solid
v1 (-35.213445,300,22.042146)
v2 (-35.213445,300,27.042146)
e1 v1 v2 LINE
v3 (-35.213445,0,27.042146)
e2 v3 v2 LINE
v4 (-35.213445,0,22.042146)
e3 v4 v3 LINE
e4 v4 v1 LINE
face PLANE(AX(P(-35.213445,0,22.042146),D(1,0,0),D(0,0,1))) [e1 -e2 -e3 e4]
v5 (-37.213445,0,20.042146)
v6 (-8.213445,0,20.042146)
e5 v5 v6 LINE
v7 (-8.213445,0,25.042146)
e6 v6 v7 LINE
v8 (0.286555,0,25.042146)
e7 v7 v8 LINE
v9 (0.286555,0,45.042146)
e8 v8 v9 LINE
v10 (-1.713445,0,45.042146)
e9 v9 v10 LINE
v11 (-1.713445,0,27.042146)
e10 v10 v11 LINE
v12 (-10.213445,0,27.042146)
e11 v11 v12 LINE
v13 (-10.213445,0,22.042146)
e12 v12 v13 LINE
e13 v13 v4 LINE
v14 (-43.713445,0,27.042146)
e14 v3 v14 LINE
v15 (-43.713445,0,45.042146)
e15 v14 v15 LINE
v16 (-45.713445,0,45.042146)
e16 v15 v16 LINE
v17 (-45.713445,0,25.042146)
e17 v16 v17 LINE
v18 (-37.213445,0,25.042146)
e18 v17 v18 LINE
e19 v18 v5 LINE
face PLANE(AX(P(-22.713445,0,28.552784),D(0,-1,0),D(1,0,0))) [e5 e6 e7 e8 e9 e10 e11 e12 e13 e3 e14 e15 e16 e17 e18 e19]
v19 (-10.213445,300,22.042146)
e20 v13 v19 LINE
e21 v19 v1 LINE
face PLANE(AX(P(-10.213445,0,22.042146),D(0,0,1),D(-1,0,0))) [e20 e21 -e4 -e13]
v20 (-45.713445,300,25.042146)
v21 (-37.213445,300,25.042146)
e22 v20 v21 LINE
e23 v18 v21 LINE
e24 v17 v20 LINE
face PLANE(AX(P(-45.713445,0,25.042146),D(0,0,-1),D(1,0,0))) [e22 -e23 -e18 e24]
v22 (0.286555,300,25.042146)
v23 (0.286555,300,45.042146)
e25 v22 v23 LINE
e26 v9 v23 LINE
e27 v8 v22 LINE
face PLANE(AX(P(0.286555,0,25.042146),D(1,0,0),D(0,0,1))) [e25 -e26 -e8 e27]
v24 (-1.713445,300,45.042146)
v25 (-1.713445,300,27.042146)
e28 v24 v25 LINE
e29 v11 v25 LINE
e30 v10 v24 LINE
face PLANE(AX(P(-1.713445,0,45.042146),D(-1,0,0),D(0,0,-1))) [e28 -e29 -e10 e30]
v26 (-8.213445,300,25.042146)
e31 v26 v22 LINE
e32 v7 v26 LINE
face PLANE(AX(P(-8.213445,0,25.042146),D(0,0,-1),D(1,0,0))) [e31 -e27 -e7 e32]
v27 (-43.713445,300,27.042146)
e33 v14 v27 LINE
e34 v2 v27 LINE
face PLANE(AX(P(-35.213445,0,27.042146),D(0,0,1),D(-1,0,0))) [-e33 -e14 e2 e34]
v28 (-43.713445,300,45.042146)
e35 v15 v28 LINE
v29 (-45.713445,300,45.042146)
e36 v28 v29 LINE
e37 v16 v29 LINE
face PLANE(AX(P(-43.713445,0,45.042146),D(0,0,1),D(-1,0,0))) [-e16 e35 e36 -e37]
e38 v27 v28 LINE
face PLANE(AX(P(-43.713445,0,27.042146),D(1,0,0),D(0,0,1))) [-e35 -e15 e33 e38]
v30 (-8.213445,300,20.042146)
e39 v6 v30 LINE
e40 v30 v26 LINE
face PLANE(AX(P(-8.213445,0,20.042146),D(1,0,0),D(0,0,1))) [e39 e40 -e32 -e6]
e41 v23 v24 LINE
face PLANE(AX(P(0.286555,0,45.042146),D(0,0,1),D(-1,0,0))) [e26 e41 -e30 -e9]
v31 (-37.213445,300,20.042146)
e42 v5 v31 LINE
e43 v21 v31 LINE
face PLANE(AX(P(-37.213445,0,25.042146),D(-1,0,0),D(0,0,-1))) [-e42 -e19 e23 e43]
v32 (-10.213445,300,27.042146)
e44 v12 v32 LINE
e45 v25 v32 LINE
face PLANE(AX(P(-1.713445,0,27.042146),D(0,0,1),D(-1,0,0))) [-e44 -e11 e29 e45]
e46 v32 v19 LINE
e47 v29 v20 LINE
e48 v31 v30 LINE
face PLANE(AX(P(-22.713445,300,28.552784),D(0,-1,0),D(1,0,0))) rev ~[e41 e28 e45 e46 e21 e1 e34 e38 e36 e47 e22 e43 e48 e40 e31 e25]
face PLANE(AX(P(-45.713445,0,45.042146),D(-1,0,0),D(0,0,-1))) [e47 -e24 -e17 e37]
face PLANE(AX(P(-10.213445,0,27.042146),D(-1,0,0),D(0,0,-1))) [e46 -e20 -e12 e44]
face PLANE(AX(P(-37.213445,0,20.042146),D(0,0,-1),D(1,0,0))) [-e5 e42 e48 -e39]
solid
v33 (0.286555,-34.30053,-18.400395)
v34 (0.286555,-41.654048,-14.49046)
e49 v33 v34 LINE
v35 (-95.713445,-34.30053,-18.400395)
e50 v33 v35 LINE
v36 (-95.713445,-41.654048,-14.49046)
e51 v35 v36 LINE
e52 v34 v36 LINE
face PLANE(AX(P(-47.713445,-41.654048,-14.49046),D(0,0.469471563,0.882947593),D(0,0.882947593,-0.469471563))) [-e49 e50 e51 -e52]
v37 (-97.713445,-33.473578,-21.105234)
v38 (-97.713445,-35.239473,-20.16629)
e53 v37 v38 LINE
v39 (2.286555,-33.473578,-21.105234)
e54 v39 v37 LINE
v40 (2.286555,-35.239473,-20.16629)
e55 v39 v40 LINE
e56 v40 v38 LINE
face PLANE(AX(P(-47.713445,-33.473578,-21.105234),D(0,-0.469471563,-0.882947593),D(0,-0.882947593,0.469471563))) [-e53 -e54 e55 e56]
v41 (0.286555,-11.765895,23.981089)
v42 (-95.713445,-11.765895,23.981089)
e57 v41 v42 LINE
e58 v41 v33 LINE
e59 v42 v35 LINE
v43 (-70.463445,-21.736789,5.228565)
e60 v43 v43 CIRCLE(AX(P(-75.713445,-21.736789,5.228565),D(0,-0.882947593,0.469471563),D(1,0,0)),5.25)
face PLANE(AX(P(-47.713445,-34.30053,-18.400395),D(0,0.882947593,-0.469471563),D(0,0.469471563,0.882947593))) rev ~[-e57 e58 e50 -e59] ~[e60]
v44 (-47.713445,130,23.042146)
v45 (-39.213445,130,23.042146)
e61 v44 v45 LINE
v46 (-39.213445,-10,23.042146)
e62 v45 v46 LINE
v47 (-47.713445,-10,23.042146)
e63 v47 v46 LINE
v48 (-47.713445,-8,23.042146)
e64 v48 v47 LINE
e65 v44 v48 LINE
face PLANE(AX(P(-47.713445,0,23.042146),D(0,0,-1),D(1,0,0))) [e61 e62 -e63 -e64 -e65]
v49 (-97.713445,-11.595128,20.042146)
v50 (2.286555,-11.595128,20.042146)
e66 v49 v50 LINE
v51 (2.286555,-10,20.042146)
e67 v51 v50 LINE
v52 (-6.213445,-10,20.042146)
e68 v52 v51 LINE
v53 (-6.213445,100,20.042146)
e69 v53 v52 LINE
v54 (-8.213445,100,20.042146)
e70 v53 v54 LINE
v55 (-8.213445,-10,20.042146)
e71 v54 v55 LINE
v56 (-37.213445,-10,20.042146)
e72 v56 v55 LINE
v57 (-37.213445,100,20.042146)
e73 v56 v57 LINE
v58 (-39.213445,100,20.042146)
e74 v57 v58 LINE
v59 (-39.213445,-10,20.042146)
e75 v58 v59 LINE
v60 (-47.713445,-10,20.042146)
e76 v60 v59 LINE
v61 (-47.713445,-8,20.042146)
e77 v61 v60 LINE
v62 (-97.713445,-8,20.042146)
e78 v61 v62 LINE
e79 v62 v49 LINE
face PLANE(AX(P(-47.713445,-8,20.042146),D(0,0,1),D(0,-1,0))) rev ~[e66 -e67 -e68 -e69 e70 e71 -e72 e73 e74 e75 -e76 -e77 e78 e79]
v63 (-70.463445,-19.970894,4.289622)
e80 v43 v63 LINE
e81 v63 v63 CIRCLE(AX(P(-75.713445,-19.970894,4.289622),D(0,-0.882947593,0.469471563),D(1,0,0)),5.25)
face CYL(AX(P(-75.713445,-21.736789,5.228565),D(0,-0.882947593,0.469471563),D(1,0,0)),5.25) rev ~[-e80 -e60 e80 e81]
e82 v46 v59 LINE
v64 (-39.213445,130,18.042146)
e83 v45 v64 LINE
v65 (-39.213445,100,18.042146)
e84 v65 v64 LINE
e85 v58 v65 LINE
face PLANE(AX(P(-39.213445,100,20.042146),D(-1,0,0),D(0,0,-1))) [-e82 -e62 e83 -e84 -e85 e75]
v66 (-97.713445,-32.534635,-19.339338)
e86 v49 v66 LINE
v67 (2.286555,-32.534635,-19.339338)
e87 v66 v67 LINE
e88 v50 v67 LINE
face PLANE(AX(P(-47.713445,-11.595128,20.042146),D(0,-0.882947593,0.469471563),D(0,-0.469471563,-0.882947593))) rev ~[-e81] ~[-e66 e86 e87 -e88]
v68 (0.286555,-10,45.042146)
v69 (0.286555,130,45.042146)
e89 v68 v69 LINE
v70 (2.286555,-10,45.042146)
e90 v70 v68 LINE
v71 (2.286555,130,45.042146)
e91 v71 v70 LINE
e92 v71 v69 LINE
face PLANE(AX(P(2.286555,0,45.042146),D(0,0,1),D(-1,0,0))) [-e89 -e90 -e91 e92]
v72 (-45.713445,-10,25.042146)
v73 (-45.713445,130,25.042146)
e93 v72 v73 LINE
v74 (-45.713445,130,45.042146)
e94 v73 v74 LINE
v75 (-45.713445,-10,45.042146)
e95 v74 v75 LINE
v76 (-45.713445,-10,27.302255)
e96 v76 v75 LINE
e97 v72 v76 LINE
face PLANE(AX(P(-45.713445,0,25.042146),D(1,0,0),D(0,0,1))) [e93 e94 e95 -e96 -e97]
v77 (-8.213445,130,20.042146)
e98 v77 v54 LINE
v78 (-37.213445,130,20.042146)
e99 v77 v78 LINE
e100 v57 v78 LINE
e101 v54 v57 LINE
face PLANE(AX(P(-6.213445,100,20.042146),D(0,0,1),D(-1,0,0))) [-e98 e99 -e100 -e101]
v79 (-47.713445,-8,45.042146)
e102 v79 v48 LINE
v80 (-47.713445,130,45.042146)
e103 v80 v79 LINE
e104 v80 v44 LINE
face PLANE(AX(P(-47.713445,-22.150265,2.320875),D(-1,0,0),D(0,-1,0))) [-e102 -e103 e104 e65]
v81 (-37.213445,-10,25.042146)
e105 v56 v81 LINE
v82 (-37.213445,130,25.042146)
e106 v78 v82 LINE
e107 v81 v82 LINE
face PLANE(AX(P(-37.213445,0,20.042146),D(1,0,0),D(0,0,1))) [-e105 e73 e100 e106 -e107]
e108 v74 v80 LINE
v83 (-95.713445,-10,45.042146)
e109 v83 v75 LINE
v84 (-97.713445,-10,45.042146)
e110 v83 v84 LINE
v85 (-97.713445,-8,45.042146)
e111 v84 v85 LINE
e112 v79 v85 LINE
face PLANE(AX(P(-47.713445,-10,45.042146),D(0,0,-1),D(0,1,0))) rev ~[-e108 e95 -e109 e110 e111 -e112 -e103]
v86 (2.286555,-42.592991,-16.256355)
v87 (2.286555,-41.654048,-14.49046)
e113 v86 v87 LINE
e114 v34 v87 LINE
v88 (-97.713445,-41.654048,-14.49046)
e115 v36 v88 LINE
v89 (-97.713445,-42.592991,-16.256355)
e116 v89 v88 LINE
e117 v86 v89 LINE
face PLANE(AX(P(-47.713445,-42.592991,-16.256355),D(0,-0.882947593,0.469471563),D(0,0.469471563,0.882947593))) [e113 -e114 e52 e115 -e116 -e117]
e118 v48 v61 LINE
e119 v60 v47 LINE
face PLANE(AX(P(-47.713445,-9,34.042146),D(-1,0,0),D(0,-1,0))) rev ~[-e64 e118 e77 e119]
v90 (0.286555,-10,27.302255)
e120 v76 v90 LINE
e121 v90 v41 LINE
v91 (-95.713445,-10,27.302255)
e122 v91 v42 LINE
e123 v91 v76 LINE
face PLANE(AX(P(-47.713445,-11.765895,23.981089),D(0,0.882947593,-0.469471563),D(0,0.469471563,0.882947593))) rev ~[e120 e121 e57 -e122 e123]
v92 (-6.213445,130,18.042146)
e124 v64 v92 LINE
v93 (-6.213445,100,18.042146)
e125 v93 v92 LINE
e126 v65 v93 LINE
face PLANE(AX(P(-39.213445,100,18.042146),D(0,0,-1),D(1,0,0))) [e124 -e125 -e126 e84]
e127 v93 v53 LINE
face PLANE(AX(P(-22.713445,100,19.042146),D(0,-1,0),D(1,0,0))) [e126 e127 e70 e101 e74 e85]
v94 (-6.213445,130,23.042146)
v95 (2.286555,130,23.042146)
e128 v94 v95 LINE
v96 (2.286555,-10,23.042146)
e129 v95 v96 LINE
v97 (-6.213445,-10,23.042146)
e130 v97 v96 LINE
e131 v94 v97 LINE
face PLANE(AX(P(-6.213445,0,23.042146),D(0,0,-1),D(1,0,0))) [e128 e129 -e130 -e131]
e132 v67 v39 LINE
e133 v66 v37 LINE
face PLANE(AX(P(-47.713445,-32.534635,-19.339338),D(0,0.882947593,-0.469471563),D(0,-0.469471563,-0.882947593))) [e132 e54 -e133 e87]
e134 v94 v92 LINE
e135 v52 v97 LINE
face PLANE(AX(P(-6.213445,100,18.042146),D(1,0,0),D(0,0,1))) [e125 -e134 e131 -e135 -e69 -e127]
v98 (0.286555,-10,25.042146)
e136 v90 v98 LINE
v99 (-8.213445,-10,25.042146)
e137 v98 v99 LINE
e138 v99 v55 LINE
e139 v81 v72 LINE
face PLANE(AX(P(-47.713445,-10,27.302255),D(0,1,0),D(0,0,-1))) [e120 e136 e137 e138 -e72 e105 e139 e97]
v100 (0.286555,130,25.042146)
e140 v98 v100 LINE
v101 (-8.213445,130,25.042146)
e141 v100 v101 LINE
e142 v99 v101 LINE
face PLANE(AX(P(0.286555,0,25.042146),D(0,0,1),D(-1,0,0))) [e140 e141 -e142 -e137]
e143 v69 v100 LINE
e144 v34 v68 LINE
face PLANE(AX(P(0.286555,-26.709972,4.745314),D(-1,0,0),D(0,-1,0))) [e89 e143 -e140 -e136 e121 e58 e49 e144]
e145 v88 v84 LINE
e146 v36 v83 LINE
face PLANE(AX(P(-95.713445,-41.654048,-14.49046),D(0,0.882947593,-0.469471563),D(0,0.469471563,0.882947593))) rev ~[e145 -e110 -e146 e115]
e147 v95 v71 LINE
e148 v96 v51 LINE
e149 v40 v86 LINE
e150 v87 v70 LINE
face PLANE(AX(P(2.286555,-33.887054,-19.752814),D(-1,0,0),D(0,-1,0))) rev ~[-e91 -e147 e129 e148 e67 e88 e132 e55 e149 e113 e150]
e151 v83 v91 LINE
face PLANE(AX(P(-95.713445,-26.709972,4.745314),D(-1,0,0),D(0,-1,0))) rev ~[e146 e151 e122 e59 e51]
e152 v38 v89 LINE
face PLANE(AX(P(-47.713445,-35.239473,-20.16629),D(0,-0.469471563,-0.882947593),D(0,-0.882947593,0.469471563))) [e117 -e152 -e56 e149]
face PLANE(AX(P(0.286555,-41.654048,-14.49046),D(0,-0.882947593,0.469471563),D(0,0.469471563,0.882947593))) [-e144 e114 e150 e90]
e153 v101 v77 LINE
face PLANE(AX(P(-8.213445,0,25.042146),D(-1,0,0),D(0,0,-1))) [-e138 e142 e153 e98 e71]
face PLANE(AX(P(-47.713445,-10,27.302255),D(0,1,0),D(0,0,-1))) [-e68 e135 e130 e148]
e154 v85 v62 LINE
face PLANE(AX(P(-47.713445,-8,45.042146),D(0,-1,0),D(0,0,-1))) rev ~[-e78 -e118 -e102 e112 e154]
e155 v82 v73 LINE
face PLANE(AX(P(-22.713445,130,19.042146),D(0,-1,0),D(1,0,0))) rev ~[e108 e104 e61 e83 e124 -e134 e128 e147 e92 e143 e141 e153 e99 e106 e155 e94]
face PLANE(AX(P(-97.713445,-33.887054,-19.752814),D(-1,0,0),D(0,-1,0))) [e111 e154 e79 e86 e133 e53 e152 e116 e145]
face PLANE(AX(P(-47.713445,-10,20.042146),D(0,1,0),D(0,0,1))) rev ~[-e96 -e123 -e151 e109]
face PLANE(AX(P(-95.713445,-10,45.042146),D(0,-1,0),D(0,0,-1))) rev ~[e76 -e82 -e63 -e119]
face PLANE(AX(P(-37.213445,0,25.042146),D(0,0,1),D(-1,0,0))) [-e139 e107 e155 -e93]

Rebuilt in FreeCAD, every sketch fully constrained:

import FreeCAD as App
import Part
import Sketcher
from FreeCAD import Vector
Q = App.Units.Quantity


def add_polygon(sketch, points):
    """Adds a closed chain of lines whose ends are joined by coincident constraints."""
    first, n = sketch.GeometryCount, len(points)
    for a, b in zip(points, points[1:] + points[:1]):
        sketch.addGeometry(Part.LineSegment(App.Vector(*a, 0), App.Vector(*b, 0)), False)
    for i in range(n):
        sketch.addConstraint(Sketcher.Constraint("Coincident", first + i, 2, first + (i + 1) % n, 1))

doc = App.newDocument("Part")
body = doc.addObject("PartDesign::Body", "Body")

# Sketch on XZ plane
sketch1 = body.newObject("Sketcher::SketchObject", "Sketch")
sketch1.AttachmentSupport = (doc.getObject("XZ_Plane"), [""])
sketch1.MapMode = "FlatFace"
add_polygon(sketch1, [(-43.7, 45), (-45.7, 45), (-45.7, 25), (-37.2, 25), (-37.2, 20), (-8.2, 20), (-8.2, 25), (0.3, 25), (0.3, 45), (-1.7, 45), (-1.7, 27), (-10.2, 27), (-10.2, 22), (-35.2, 22), (-35.2, 27), (-43.7, 27)])  # lines 0-15
sketch1.addConstraint([
    Sketcher.Constraint("Horizontal", 0),
    Sketcher.Constraint("Vertical", 1),
    Sketcher.Constraint("Horizontal", 2),
    Sketcher.Constraint("Vertical", 3),
    Sketcher.Constraint("Horizontal", 4),
    Sketcher.Constraint("Vertical", 5),
    Sketcher.Constraint("Horizontal", 6),
    Sketcher.Constraint("Vertical", 7),
    Sketcher.Constraint("Horizontal", 8),
    Sketcher.Constraint("Vertical", 9),
    Sketcher.Constraint("Horizontal", 10),
    Sketcher.Constraint("Vertical", 11),
    Sketcher.Constraint("Horizontal", 12),
    Sketcher.Constraint("Vertical", 13),
    Sketcher.Constraint("Horizontal", 14),
    Sketcher.Constraint("Vertical", 15),
    Sketcher.Constraint("Horizontal", 2, 2, 5, 2),
    Sketcher.Constraint("Horizontal", 0, 2, 7, 2),
    Sketcher.Constraint("Horizontal", 10, 2, 13, 2),
    Sketcher.Constraint("Equal", 2, 6),
    Sketcher.Constraint("Equal", 0, 8),
    Sketcher.Constraint("Equal", 6, 10),
    Sketcher.Constraint("Equal", 10, 14),
    Sketcher.Constraint("Equal", 5, 11),
    Sketcher.Constraint("DistanceX", 0, 2, 0, 1, Q("2 mm")),
    Sketcher.Constraint("DistanceX", 4, 1, 4, 2, Q("29 mm")),
    Sketcher.Constraint("DistanceY", 1, 2, 1, 1, Q("20 mm")),
    Sketcher.Constraint("DistanceY", 3, 2, 3, 1, Q("5 mm")),
    Sketcher.Constraint("DistanceY", 9, 2, 9, 1, Q("18 mm")),
    Sketcher.Constraint("DistanceX", 2, 1, 2, 2, Q("8.5 mm")),
    Sketcher.Constraint("DistanceX", 0, 2, -1, 1, Q("45.713445 mm")),
    Sketcher.Constraint("DistanceY", -1, 1, 0, 2, Q("45.042146 mm")),
])
pad1 = body.newObject("PartDesign::Pad", "Pad")
pad1.Profile = sketch1
pad1.Length = 300
pad1.Reversed = True
body2 = doc.addObject("PartDesign::Body", "Body001")

# Sketch on XZ plane
sketch2 = body2.newObject("Sketcher::SketchObject", "Sketch001")
sketch2.AttachmentSupport = (doc.getObject("XZ_Plane001"), [""])
sketch2.MapMode = "FlatFace"
add_polygon(sketch2, [(-45.7, 25), (-45.7, 45), (-47.7, 45), (-47.7, 23), (-39.2, 23), (-39.2, 20), (-37.2, 20), (-37.2, 25)])  # lines 0-7
sketch2.addConstraint([
    Sketcher.Constraint("Vertical", 0),
    Sketcher.Constraint("Horizontal", 1),
    Sketcher.Constraint("Vertical", 2),
    Sketcher.Constraint("Horizontal", 3),
    Sketcher.Constraint("Vertical", 4),
    Sketcher.Constraint("Horizontal", 5),
    Sketcher.Constraint("Vertical", 6),
    Sketcher.Constraint("Horizontal", 7),
    Sketcher.Constraint("Equal", 1, 5),
    Sketcher.Constraint("DistanceX", 1, 2, 1, 1, Q("2 mm")),
    Sketcher.Constraint("DistanceY", 0, 1, 0, 2, Q("20 mm")),
    Sketcher.Constraint("DistanceY", 2, 2, 2, 1, Q("22 mm")),
    Sketcher.Constraint("DistanceY", 4, 2, 4, 1, Q("3 mm")),
    Sketcher.Constraint("DistanceX", 3, 1, 3, 2, Q("8.5 mm")),
    Sketcher.Constraint("DistanceX", 0, 2, -1, 1, Q("45.713445 mm")),
    Sketcher.Constraint("DistanceY", -1, 1, 0, 2, Q("45.042146 mm")),
])
pad2 = body2.newObject("PartDesign::Pad", "Pad001")
pad2.Profile = sketch2
pad2.Type = "TwoLengths"
pad2.Length = 10
pad2.Length2 = 130
body3 = doc.addObject("PartDesign::Body", "Body002")

# Sketch on XZ plane
sketch3 = body3.newObject("Sketcher::SketchObject", "Sketch002")
sketch3.AttachmentSupport = (doc.getObject("XZ_Plane002"), [""])
sketch3.MapMode = "FlatFace"
add_polygon(sketch3, [(-8.2, 25), (-8.2, 20), (-6.2, 20), (-6.2, 23), (2.3, 23), (2.3, 45), (0.3, 45), (0.3, 25)])  # lines 0-7
sketch3.addConstraint([
    Sketcher.Constraint("Vertical", 0),
    Sketcher.Constraint("Horizontal", 1),
    Sketcher.Constraint("Vertical", 2),
    Sketcher.Constraint("Horizontal", 3),
    Sketcher.Constraint("Vertical", 4),
    Sketcher.Constraint("Horizontal", 5),
    Sketcher.Constraint("Vertical", 6),
    Sketcher.Constraint("Horizontal", 7),
    Sketcher.Constraint("Equal", 1, 5),
    Sketcher.Constraint("DistanceX", 1, 1, 1, 2, Q("2 mm")),
    Sketcher.Constraint("DistanceY", 0, 2, 0, 1, Q("5 mm")),
    Sketcher.Constraint("DistanceY", 2, 1, 2, 2, Q("3 mm")),
    Sketcher.Constraint("DistanceY", 4, 1, 4, 2, Q("22 mm")),
    Sketcher.Constraint("DistanceX", 3, 1, 3, 2, Q("8.5 mm")),
    Sketcher.Constraint("DistanceX", 0, 2, -1, 1, Q("8.213445 mm")),
    Sketcher.Constraint("DistanceY", -1, 1, 0, 2, Q("20.042146 mm")),
])
pad3 = body3.newObject("PartDesign::Pad", "Pad002")
pad3.Profile = sketch3
pad3.Type = "TwoLengths"
pad3.Length = 10
pad3.Length2 = 130
body2.AllowCompound = True
doc.recompute()

boolean = body2.newObject("PartDesign::Boolean", "Boolean")
boolean.Type = "Fuse"
boolean.addObjects([body3])

# Sketch on YZ plane
sketch4 = body2.newObject("Sketcher::SketchObject", "Sketch003")
sketch4.AttachmentSupport = (doc.getObject("YZ_Plane001"), [""])
sketch4.MapMode = "FlatFace"
sketch4.AttachmentOffset = App.Placement(Vector(0, 0, -47.713445), App.Rotation())
add_polygon(sketch4, [(-11.6, 20), (-32.5, -19.3), (-34.3, -18.4), (-11.8, 24), (-10, 27.3), (-10, 20)])  # lines 0-5
sketch4.addConstraint([
    Sketcher.Constraint("Vertical", 4),
    Sketcher.Constraint("Horizontal", 5),
    Sketcher.Constraint("Perpendicular", 0, 1),
    Sketcher.Constraint("Perpendicular", 1, 2),
    Sketcher.Constraint("Parallel", 2, 3),
    Sketcher.Constraint("Angle", 0, Q("-118 deg")),
    Sketcher.Constraint("Distance", 1, Q("2 mm")),
    Sketcher.Constraint("Distance", 2, Q("48 mm")),
    Sketcher.Constraint("DistanceX", 3, 2, -1, 1, Q("10 mm")),
    Sketcher.Constraint("DistanceX", 5, 2, 5, 1, Q("1.595128 mm")),
    Sketcher.Constraint("DistanceX", 1, 2, 5, 2, Q("22.705402 mm")),
    Sketcher.Constraint("DistanceY", 0, 2, -1, 1, Q("19.339338 mm")),
])
pad4 = body2.newObject("PartDesign::Pad", "Pad003")
pad4.Profile = sketch4
pad4.Type = "TwoLengths"
pad4.Length = 50
pad4.Length2 = 50

# Sketch on YZ plane
sketch5 = body2.newObject("Sketcher::SketchObject", "Sketch004")
sketch5.AttachmentSupport = (doc.getObject("YZ_Plane001"), [""])
sketch5.MapMode = "FlatFace"
sketch5.AttachmentOffset = App.Placement(Vector(0, 0, 0.286555), App.Rotation())
add_polygon(sketch5, [(-11.8, 24), (-34.3, -18.4), (-41.7, -14.5), (-10, 45), (-10, 27.3)])  # lines 0-4
sketch5.addConstraint([
    Sketcher.Constraint("Vertical", 3),
    Sketcher.Constraint("Perpendicular", 0, 1),
    Sketcher.Constraint("Perpendicular", 1, 2),
    Sketcher.Constraint("Parallel", 2, 4),
    Sketcher.Constraint("Angle", 0, Q("-118 deg")),
    Sketcher.Constraint("Distance", 0, Q("48 mm")),
    Sketcher.Constraint("DistanceX", 2, 2, -1, 1, Q("10 mm")),
    Sketcher.Constraint("DistanceY", 3, 2, 3, 1, Q("17.739891 mm")),
    Sketcher.Constraint("DistanceX", 0, 2, -1, 1, Q("34.30053 mm")),
    Sketcher.Constraint("DistanceY", 1, 2, -1, 1, Q("14.49046 mm")),
])
pad5 = body2.newObject("PartDesign::Pad", "Pad004")
pad5.Profile = sketch5
pad5.Length = 2

# Sketch on XZ plane
sketch6 = body2.newObject("Sketcher::SketchObject", "Sketch005")
sketch6.AttachmentSupport = (doc.getObject("XZ_Plane001"), [""])
sketch6.MapMode = "FlatFace"
sketch6.AttachmentOffset = App.Placement(Vector(0, 0, -100), App.Rotation())
add_polygon(sketch6, [(-39.2, 20), (-39.2, 18), (-6.2, 18), (-6.2, 20)])  # lines 0-3
sketch6.addConstraint([
    Sketcher.Constraint("Vertical", 0),
    Sketcher.Constraint("Horizontal", 1),
    Sketcher.Constraint("Vertical", 2),
    Sketcher.Constraint("Horizontal", 3),
    Sketcher.Constraint("DistanceX", 1, 1, 1, 2, Q("33 mm")),
    Sketcher.Constraint("DistanceY", 0, 2, 0, 1, Q("2 mm")),
    Sketcher.Constraint("DistanceX", 0, 2, -1, 1, Q("39.213445 mm")),
    Sketcher.Constraint("DistanceY", -1, 1, 0, 2, Q("18.042146 mm")),
])
pad6 = body2.newObject("PartDesign::Pad", "Pad005")
pad6.Profile = sketch6
pad6.Length = 30
pad6.Reversed = True

# Sketch on YZ plane
sketch7 = body2.newObject("Sketcher::SketchObject", "Sketch006")
sketch7.AttachmentSupport = (doc.getObject("YZ_Plane001"), [""])
sketch7.MapMode = "FlatFace"
sketch7.AttachmentOffset = App.Placement(Vector(0, 0, -95.713445), App.Rotation())
add_polygon(sketch7, [(-11.8, 24), (-34.3, -18.4), (-41.7, -14.5), (-10, 45), (-10, 27.3)])  # lines 0-4
sketch7.addConstraint([
    Sketcher.Constraint("Vertical", 3),
    Sketcher.Constraint("Perpendicular", 0, 1),
    Sketcher.Constraint("Perpendicular", 1, 2),
    Sketcher.Constraint("Parallel", 2, 4),
    Sketcher.Constraint("Angle", 0, Q("-118 deg")),
    Sketcher.Constraint("Distance", 0, Q("48 mm")),
    Sketcher.Constraint("DistanceX", 2, 2, -1, 1, Q("10 mm")),
    Sketcher.Constraint("DistanceY", 3, 2, 3, 1, Q("17.739891 mm")),
    Sketcher.Constraint("DistanceX", 0, 2, -1, 1, Q("34.30053 mm")),
    Sketcher.Constraint("DistanceY", 1, 2, -1, 1, Q("14.49046 mm")),
])
pad7 = body2.newObject("PartDesign::Pad", "Pad006")
pad7.Profile = sketch7
pad7.Length = 2
pad7.Reversed = True

# Sketch on YZ plane
sketch8 = body2.newObject("Sketcher::SketchObject", "Sketch007")
sketch8.AttachmentSupport = (doc.getObject("YZ_Plane001"), [""])
sketch8.MapMode = "FlatFace"
sketch8.AttachmentOffset = App.Placement(Vector(0, 0, -47.713445), App.Rotation())
add_polygon(sketch8, [(-10, 45), (-8, 45), (-8, 20), (-10, 20)])  # lines 0-3
sketch8.addConstraint([
    Sketcher.Constraint("Horizontal", 0),
    Sketcher.Constraint("Vertical", 1),
    Sketcher.Constraint("Horizontal", 2),
    Sketcher.Constraint("Vertical", 3),
    Sketcher.Constraint("DistanceX", 0, 1, 0, 2, Q("2 mm")),
    Sketcher.Constraint("DistanceY", 1, 2, 1, 1, Q("25 mm")),
    Sketcher.Constraint("DistanceX", 0, 2, -1, 1, Q("8 mm")),
    Sketcher.Constraint("DistanceY", -1, 1, 0, 2, Q("45.042146 mm")),
])
pad8 = body2.newObject("PartDesign::Pad", "Pad007")
pad8.Profile = sketch8
pad8.Length = 50
pad8.Reversed = True

# Sketch on YZ plane
sketch9 = body2.newObject("Sketcher::SketchObject", "Sketch008")
sketch9.AttachmentSupport = (doc.getObject("YZ_Plane001"), [""])
sketch9.MapMode = "FlatFace"
sketch9.AttachmentOffset = App.Placement(Vector(0, 0, -47.713445), App.Rotation())
add_polygon(sketch9, [(-34.3, -18.4), (-32.5, -19.3), (-33.5, -21.1), (-35.2, -20.2), (-42.6, -16.3), (-41.7, -14.5)])  # lines 0-5
sketch9.addConstraint([
    Sketcher.Constraint("Perpendicular", 0, 1),
    Sketcher.Constraint("Perpendicular", 1, 2),
    Sketcher.Constraint("Parallel", 2, 3),
    Sketcher.Constraint("Perpendicular", 3, 4),
    Sketcher.Constraint("Perpendicular", 4, 5),
    Sketcher.Constraint("Equal", 0, 1),
    Sketcher.Constraint("Equal", 1, 2),
    Sketcher.Constraint("Angle", 0, Q("-28 deg")),
    Sketcher.Constraint("Distance", 0, Q("2 mm")),
    Sketcher.Constraint("DistanceY", 0, 2, -1, 1, Q("19.339338 mm")),
    Sketcher.Constraint("DistanceX", 1, 2, -1, 1, Q("33.473578 mm")),
    Sketcher.Constraint("DistanceX", 3, 2, -1, 1, Q("42.592991 mm")),
])
pad9 = body2.newObject("PartDesign::Pad", "Pad008")
pad9.Profile = sketch9
pad9.Type = "TwoLengths"
pad9.Length = 50
pad9.Length2 = 50
pad9.Reversed = True

# Sketch on an angled plane
sketch10 = body2.newObject("Sketcher::SketchObject", "Sketch009")
sketch10.Placement = App.Placement(Vector(0, -19.113262, 10.162702), App.Rotation(Vector(1, 0, 0), Vector(0, 0.469471563, 0.882947593), Vector(0, -0.882947593, 0.469471563), "ZXY"))
sketch10.addGeometry(Part.Circle(Vector(-76, -6, 0), Vector(0, 0, 1), 5), False)
sketch10.addConstraint([
    Sketcher.Constraint("Diameter", 0, Q("10.5 mm")),
    Sketcher.Constraint("DistanceX", 0, 3, -1, 1, Q("75.713445 mm")),
    Sketcher.Constraint("DistanceY", 0, 3, -1, 1, Q("5.588255 mm")),
])
pocket1 = body2.newObject("PartDesign::Pocket", "Pocket")
pocket1.Profile = sketch10
pocket1.Length = 25

doc.recompute()
